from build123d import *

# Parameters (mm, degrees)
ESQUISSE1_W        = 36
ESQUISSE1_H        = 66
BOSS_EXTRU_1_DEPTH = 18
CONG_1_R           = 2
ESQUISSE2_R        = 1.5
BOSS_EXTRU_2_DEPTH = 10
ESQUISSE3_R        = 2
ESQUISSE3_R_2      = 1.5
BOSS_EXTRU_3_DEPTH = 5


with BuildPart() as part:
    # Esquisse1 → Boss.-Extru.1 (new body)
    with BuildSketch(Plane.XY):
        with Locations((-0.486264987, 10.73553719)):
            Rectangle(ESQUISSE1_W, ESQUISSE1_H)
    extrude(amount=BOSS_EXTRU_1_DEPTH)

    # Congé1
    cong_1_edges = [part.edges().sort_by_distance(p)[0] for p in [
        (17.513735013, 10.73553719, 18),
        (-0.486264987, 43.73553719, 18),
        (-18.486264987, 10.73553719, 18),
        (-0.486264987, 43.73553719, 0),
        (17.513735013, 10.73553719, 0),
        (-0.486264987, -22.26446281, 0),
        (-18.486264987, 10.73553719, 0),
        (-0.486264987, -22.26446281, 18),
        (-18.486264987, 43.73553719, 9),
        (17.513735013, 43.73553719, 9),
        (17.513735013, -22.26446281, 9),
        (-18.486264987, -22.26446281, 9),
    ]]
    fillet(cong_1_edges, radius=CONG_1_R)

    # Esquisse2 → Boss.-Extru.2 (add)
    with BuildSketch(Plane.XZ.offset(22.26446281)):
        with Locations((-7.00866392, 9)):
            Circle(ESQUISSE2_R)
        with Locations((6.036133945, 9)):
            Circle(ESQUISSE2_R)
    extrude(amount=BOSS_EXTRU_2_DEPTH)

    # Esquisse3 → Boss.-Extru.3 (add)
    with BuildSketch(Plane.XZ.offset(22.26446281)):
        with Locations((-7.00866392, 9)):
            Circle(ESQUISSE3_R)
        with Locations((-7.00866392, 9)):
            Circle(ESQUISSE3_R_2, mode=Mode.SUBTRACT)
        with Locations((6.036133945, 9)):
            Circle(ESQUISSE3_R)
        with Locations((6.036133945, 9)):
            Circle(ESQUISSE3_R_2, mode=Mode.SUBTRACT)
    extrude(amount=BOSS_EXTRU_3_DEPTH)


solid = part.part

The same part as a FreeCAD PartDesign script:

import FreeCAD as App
import Part
import Sketcher
Q = App.Units.Quantity


def add_polygon(sketch, points):
    """Adds a closed chain of lines whose ends are joined by coincident constraints."""
    first, n = sketch.GeometryCount, len(points)
    for a, b in zip(points, points[1:] + points[:1]):
        sketch.addGeometry(Part.LineSegment(App.Vector(*a, 0), App.Vector(*b, 0)), False)
    for i in range(n):
        sketch.addConstraint(Sketcher.Constraint("Coincident", first + i, 2, first + (i + 1) % n, 1))

doc = App.newDocument("Part")
body = doc.addObject("PartDesign::Body", "Body")

sketch1 = body.newObject("Sketcher::SketchObject", "Sketch")
sketch1.AttachmentSupport = (doc.getObject("XY_Plane"), [""])
sketch1.MapMode = "FlatFace"
add_polygon(sketch1, [(-18.486265, 43.735537), (-18.486265, -22.264463), (17.513735, -22.264463), (17.513735, 43.735537)])
sketch1.addConstraint(Sketcher.Constraint("Vertical", 0))
sketch1.addConstraint(Sketcher.Constraint("Horizontal", 1))
sketch1.addConstraint(Sketcher.Constraint("Vertical", 2))
sketch1.addConstraint(Sketcher.Constraint("Horizontal", 3))
sketch1.addConstraint(Sketcher.Constraint("DistanceX", 1, 1, 1, 2, Q("36 mm")))
sketch1.addConstraint(Sketcher.Constraint("DistanceY", 0, 2, 0, 1, Q("66 mm")))
sketch1.addConstraint(Sketcher.Constraint("DistanceX", 0, 2, -1, 1, Q("18.486265 mm")))
sketch1.addConstraint(Sketcher.Constraint("DistanceY", 0, 2, -1, 1, Q("22.264463 mm")))
pad1 = body.newObject("PartDesign::Pad", "Pad")
pad1.Profile = sketch1
pad1.Length = 18
doc.recompute()

fillet = body.newObject("PartDesign::Fillet", "Fillet")
fillet.Base = (pad1, ["Edge1"])
fillet.UseAllEdges = True
fillet.Radius = 2

sketch2 = body.newObject("Sketcher::SketchObject", "Sketch001")
sketch2.AttachmentSupport = (doc.getObject("XZ_Plane"), [""])
sketch2.MapMode = "FlatFace"
sketch2.AttachmentOffset = App.Placement(App.Vector(0, 0, 22.264463), App.Rotation())
sketch2.addGeometry(Part.Circle(App.Vector(-7.008664, 9, 0), App.Vector(0, 0, 1), 1.5), False)
sketch2.addGeometry(Part.Circle(App.Vector(6.036134, 9, 0), App.Vector(0, 0, 1), 1.5), False)
sketch2.addConstraint(Sketcher.Constraint("Equal", 0, 1))
sketch2.addConstraint(Sketcher.Constraint("Horizontal", 0, 3, 1, 3))
sketch2.addConstraint(Sketcher.Constraint("Diameter", 0, Q("3 mm")))
sketch2.addConstraint(Sketcher.Constraint("DistanceY", -1, 1, 0, 3, Q("9 mm")))
sketch2.addConstraint(Sketcher.Constraint("DistanceX", 0, 3, -1, 1, Q("7.008664 mm")))
sketch2.addConstraint(Sketcher.Constraint("DistanceX", -1, 1, 1, 3, Q("6.036134 mm")))
pad2 = body.newObject("PartDesign::Pad", "Pad001")
pad2.Profile = sketch2
pad2.Length = 10

sketch3 = body.newObject("Sketcher::SketchObject", "Sketch002")
sketch3.AttachmentSupport = (doc.getObject("XZ_Plane"), [""])
sketch3.MapMode = "FlatFace"
sketch3.AttachmentOffset = App.Placement(App.Vector(0, 0, 22.264463), App.Rotation())
sketch3.addGeometry(Part.Circle(App.Vector(-7.008664, 9, 0), App.Vector(0, 0, 1), 2), False)
sketch3.addGeometry(Part.Circle(App.Vector(-7.008664, 9, 0), App.Vector(0, 0, 1), 1.5), False)
sketch3.addGeometry(Part.Circle(App.Vector(6.036134, 9, 0), App.Vector(0, 0, 1), 2), False)
sketch3.addGeometry(Part.Circle(App.Vector(6.036134, 9, 0), App.Vector(0, 0, 1), 1.5), False)
sketch3.addConstraint(Sketcher.Constraint("Coincident", 1, 3, 0, 3))
sketch3.addConstraint(Sketcher.Constraint("Coincident", 3, 3, 2, 3))
sketch3.addConstraint(Sketcher.Constraint("Equal", 0, 2))
sketch3.addConstraint(Sketcher.Constraint("Equal", 1, 3))
sketch3.addConstraint(Sketcher.Constraint("Horizontal", 1, 3, 2, 3))
sketch3.addConstraint(Sketcher.Constraint("Diameter", 0, Q("4 mm")))
sketch3.addConstraint(Sketcher.Constraint("Diameter", 1, Q("3 mm")))
sketch3.addConstraint(Sketcher.Constraint("DistanceY", -1, 1, 0, 3, Q("9 mm")))
sketch3.addConstraint(Sketcher.Constraint("DistanceX", 0, 3, -1, 1, Q("7.008664 mm")))
sketch3.addConstraint(Sketcher.Constraint("DistanceX", -1, 1, 2, 3, Q("6.036134 mm")))
pad3 = body.newObject("PartDesign::Pad", "Pad002")
pad3.Profile = sketch3
pad3.Length = 5

doc.recompute()
